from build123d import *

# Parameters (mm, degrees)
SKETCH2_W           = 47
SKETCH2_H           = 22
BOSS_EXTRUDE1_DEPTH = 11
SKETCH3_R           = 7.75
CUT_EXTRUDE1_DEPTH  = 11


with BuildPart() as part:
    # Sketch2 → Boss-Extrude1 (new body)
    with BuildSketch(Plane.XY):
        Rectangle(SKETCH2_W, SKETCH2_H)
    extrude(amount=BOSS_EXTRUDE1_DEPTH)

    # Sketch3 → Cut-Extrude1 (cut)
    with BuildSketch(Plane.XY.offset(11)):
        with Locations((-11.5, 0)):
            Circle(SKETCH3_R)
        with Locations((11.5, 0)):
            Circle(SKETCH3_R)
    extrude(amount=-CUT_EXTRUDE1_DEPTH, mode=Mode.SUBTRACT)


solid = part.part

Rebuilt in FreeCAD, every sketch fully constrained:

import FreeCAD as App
import Part
import Sketcher
from FreeCAD import Vector
Q = App.Units.Quantity

doc = App.newDocument("Part")
body = doc.addObject("PartDesign::Body", "Body")

# Sketch on XY plane
sketch1 = doc.addObject("Sketcher::SketchObject", "Sketch")
body.addObject(sketch1)
sketch1.AttachmentSupport = (doc.XY_Plane, [""])
sketch1.MapMode = "FlatFace"
sketch1.addGeometry(Part.LineSegment(Vector(-23.5, 11, 0), Vector(-23.5, -11, 0)), False)
sketch1.addGeometry(Part.LineSegment(Vector(-23.5, -11, 0), Vector(23.5, -11, 0)), False)
sketch1.addGeometry(Part.LineSegment(Vector(23.5, -11, 0), Vector(23.5, 11, 0)), False)
sketch1.addGeometry(Part.LineSegment(Vector(23.5, 11, 0), Vector(-23.5, 11, 0)), False)
sketch1.addConstraint(Sketcher.Constraint("Coincident", 0, 2, 1, 1))
sketch1.addConstraint(Sketcher.Constraint("Coincident", 1, 2, 2, 1))
sketch1.addConstraint(Sketcher.Constraint("Coincident", 2, 2, 3, 1))
sketch1.addConstraint(Sketcher.Constraint("Coincident", 3, 2, 0, 1))
sketch1.addConstraint(Sketcher.Constraint("Vertical", 0))
sketch1.addConstraint(Sketcher.Constraint("Horizontal", 1))
sketch1.addConstraint(Sketcher.Constraint("Vertical", 2))
sketch1.addConstraint(Sketcher.Constraint("Horizontal", 3))
sketch1.addConstraint(Sketcher.Constraint("Symmetric", 0, 2, 2, 2, -1, 1))
sketch1.addConstraint(Sketcher.Constraint("DistanceX", 1, 1, 1, 2, Q("47 mm")))
sketch1.addConstraint(Sketcher.Constraint("DistanceY", 0, 2, 0, 1, Q("22 mm")))
pad1 = doc.addObject("PartDesign::Pad", "Pad")
body.addObject(pad1)
pad1.Profile = sketch1
pad1.Length = 11

# Sketch on XY plane
sketch2 = doc.addObject("Sketcher::SketchObject", "Sketch001")
body.addObject(sketch2)
sketch2.AttachmentSupport = (doc.XY_Plane, [""])
sketch2.MapMode = "FlatFace"
sketch2.AttachmentOffset = App.Placement(Vector(0, 0, 11), App.Rotation())
sketch2.addGeometry(Part.Circle(Vector(-11.5, 0, 0), Vector(0, 0, 1), 7.75), False)
sketch2.addGeometry(Part.Circle(Vector(11.5, 0, 0), Vector(0, 0, 1), 7.75), False)
sketch2.addConstraint(Sketcher.Constraint("Equal", 0, 1))
sketch2.addConstraint(Sketcher.Constraint("Symmetric", 0, 3, 1, 3, -1, 1))
sketch2.addConstraint(Sketcher.Constraint("PointOnObject", 0, 3, -1))
sketch2.addConstraint(Sketcher.Constraint("Diameter", 0, Q("15.5 mm")))
sketch2.addConstraint(Sketcher.Constraint("DistanceX", 0, 3, 1, 3, Q("23 mm")))
pocket1 = doc.addObject("PartDesign::Pocket", "Pocket")
body.addObject(pocket1)
pocket1.Profile = sketch2
pocket1.Length = 11

doc.recompute()
